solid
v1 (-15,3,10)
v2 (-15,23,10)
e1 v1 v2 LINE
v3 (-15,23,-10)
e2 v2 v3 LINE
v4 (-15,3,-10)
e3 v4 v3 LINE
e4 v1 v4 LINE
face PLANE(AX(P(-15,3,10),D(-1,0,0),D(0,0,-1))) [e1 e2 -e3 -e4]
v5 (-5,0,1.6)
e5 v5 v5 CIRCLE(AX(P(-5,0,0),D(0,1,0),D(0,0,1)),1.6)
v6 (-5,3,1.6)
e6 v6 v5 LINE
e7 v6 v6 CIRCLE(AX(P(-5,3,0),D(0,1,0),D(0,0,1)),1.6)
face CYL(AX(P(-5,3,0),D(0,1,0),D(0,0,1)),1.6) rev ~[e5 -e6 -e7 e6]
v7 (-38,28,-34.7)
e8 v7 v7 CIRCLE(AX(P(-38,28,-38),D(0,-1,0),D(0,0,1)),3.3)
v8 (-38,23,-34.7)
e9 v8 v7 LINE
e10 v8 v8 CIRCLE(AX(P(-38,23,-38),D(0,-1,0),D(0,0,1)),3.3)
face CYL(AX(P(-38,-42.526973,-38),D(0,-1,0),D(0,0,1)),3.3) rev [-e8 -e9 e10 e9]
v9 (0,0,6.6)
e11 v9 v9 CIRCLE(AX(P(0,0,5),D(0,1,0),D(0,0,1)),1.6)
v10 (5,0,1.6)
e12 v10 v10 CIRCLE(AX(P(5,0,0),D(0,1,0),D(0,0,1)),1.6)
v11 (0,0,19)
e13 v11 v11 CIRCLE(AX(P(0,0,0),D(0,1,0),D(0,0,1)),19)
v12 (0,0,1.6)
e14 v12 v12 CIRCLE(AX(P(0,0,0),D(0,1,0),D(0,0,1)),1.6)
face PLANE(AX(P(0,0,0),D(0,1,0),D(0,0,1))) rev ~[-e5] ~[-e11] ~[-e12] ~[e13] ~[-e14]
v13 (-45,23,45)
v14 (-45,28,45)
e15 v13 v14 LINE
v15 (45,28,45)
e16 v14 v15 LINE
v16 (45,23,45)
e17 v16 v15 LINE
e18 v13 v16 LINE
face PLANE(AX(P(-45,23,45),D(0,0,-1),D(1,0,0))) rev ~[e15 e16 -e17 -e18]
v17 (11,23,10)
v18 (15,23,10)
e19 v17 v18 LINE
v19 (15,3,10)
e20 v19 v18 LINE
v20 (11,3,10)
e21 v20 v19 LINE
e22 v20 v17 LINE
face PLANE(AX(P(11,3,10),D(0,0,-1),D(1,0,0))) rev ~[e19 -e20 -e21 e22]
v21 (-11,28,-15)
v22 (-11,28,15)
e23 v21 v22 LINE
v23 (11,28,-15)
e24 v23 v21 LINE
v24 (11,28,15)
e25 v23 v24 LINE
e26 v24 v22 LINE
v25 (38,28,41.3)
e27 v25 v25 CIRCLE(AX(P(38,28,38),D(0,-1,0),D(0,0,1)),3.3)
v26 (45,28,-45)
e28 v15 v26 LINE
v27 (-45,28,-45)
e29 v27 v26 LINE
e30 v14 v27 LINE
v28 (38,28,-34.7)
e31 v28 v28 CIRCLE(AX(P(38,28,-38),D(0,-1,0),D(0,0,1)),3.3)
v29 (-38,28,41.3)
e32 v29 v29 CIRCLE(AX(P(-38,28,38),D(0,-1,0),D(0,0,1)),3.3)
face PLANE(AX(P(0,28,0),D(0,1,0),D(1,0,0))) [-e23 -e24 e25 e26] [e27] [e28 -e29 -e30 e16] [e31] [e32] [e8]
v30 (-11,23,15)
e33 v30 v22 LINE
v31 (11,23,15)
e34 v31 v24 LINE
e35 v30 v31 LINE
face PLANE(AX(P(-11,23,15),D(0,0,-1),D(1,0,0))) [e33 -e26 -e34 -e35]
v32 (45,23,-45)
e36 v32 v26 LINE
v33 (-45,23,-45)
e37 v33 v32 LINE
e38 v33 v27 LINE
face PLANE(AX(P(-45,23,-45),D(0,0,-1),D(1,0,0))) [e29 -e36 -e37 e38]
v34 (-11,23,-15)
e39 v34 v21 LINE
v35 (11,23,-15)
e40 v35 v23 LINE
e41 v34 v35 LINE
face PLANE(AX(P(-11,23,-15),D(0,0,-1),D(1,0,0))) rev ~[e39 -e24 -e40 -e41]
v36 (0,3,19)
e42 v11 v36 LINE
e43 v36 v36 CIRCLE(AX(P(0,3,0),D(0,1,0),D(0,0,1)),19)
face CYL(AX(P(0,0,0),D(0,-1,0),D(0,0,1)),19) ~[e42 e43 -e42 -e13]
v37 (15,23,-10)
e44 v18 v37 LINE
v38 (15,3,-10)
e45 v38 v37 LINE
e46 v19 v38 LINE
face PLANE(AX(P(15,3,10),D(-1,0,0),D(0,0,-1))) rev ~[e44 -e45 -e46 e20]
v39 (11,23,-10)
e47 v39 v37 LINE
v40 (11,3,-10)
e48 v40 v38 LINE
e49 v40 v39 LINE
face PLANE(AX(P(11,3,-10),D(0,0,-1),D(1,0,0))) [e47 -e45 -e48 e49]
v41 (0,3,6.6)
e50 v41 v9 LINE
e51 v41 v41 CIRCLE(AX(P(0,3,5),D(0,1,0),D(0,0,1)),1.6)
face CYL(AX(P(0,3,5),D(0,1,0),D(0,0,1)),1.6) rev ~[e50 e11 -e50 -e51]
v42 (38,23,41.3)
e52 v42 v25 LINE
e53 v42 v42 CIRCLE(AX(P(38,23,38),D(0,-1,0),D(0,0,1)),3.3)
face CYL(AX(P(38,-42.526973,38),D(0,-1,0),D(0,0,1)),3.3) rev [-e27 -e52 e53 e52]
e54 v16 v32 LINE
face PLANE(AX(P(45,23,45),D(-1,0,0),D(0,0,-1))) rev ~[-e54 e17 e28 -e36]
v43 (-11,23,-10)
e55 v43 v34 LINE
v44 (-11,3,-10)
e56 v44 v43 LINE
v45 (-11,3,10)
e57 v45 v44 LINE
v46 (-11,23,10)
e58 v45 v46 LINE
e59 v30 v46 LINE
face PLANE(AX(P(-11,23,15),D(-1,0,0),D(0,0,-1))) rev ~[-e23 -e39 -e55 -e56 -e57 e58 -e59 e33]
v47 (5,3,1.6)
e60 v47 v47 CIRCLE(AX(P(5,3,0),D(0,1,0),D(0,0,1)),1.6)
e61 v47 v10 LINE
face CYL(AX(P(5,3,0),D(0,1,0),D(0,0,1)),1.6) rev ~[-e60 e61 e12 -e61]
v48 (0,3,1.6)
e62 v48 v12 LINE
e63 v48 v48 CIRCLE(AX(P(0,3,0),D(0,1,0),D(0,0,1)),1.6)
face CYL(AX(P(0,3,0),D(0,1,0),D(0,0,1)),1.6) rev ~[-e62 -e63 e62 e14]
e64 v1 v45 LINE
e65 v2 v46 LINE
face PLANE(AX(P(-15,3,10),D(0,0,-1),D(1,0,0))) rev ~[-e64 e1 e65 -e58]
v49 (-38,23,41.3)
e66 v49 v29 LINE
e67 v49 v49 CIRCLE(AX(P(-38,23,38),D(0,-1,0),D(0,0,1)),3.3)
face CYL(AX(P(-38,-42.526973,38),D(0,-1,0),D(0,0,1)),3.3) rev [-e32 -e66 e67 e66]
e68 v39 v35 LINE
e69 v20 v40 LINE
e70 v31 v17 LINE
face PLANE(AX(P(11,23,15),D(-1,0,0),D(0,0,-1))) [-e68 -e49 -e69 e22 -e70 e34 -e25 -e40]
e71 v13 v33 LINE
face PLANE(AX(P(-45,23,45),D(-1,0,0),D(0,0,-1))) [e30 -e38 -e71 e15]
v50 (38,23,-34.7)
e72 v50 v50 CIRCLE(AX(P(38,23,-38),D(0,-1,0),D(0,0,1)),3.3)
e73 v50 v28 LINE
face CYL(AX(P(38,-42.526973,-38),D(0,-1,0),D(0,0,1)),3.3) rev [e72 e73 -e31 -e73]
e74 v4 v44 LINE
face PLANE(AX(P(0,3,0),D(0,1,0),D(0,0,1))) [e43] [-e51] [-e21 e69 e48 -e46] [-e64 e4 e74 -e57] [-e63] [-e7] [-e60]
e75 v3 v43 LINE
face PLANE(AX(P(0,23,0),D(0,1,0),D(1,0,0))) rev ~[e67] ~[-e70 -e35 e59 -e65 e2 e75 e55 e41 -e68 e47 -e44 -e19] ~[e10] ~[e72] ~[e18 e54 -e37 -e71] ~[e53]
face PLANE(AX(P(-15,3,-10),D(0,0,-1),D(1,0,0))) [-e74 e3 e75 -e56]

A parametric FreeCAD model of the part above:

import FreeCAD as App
import Part
import Sketcher

doc = App.newDocument("Part")
body = doc.addObject("PartDesign::Body", "Body")

# Sketch on XZ plane
sketch1 = body.newObject("Sketcher::SketchObject", "Sketch")
sketch1.AttachmentSupport = (doc.getObject("XZ_Plane"), [""])
sketch1.MapMode = "FlatFace"
sketch1.addGeometry(Part.Circle(App.Vector(0, 0, 0), App.Vector(0, 0, 1), 19), False)
sketch1.addConstraint(Sketcher.Constraint("Coincident", 0, 3, -1, 1))
sketch1.addConstraint(Sketcher.Constraint("Diameter", 0, 38.0))
pad1 = body.newObject("PartDesign::Pad", "Pad")
pad1.Profile = sketch1
pad1.Length = 3
pad1.Reversed = True

# Sketch on XZ plane
sketch2 = body.newObject("Sketcher::SketchObject", "Sketch001")
sketch2.AttachmentSupport = (doc.getObject("XZ_Plane"), [""])
sketch2.MapMode = "FlatFace"
sketch2.AttachmentOffset = App.Placement(App.Vector(0, 0, -3), App.Rotation())
sketch2.addGeometry(Part.Circle(App.Vector(-5, 0, 0), App.Vector(0, 0, 1), 1.6), False)
sketch2.addConstraint(Sketcher.Constraint("PointOnObject", 0, 3, -1))
sketch2.addConstraint(Sketcher.Constraint("Diameter", 0, 3.2))
sketch2.addConstraint(Sketcher.Constraint("DistanceX", 0, 3, -1, 1, 5.0))
pocket1 = body.newObject("PartDesign::Pocket", "Pocket")
pocket1.Profile = sketch2
pocket1.Type = "UpToFirst"
pocket1.Reversed = True

# Sketch on XZ plane
sketch3 = body.newObject("Sketcher::SketchObject", "Sketch002")
sketch3.AttachmentSupport = (doc.getObject("XZ_Plane"), [""])
sketch3.MapMode = "FlatFace"
sketch3.AttachmentOffset = App.Placement(App.Vector(0, 0, -3), App.Rotation())
sketch3.addGeometry(Part.Circle(App.Vector(0, 0, 0), App.Vector(0, 0, 1), 1.6), False)
sketch3.addConstraint(Sketcher.Constraint("Coincident", 0, 3, -1, 1))
sketch3.addConstraint(Sketcher.Constraint("Diameter", 0, 3.2))
pocket2 = body.newObject("PartDesign::Pocket", "Pocket001")
pocket2.Profile = sketch3
pocket2.Type = "UpToFirst"
pocket2.Reversed = True

# Sketch on XZ plane
sketch4 = body.newObject("Sketcher::SketchObject", "Sketch003")
sketch4.AttachmentSupport = (doc.getObject("XZ_Plane"), [""])
sketch4.MapMode = "FlatFace"
sketch4.AttachmentOffset = App.Placement(App.Vector(0, 0, -3), App.Rotation())
sketch4.addGeometry(Part.Circle(App.Vector(5, 0, 0), App.Vector(0, 0, 1), 1.6), False)
sketch4.addConstraint(Sketcher.Constraint("PointOnObject", 0, 3, -1))
sketch4.addConstraint(Sketcher.Constraint("Diameter", 0, 3.2))
sketch4.addConstraint(Sketcher.Constraint("DistanceX", -1, 1, 0, 3, 5.0))
pocket3 = body.newObject("PartDesign::Pocket", "Pocket002")
pocket3.Profile = sketch4
pocket3.Type = "UpToFirst"
pocket3.Reversed = True

# Sketch on XZ plane
sketch5 = body.newObject("Sketcher::SketchObject", "Sketch004")
sketch5.AttachmentSupport = (doc.getObject("XZ_Plane"), [""])
sketch5.MapMode = "FlatFace"
sketch5.AttachmentOffset = App.Placement(App.Vector(0, 0, -3), App.Rotation())
sketch5.addGeometry(Part.Circle(App.Vector(0, 5, 0), App.Vector(0, 0, 1), 1.6), False)
sketch5.addConstraint(Sketcher.Constraint("PointOnObject", 0, 3, -2))
sketch5.addConstraint(Sketcher.Constraint("Diameter", 0, 3.2))
sketch5.addConstraint(Sketcher.Constraint("DistanceY", -1, 1, 0, 3, 5.0))
pocket4 = body.newObject("PartDesign::Pocket", "Pocket003")
pocket4.Profile = sketch5
pocket4.Type = "UpToFirst"
pocket4.Reversed = True

# Sketch on XZ plane
sketch6 = body.newObject("Sketcher::SketchObject", "Sketch005")
sketch6.AttachmentSupport = (doc.getObject("XZ_Plane"), [""])
sketch6.MapMode = "FlatFace"
sketch6.AttachmentOffset = App.Placement(App.Vector(0, 0, -3), App.Rotation())
sketch6.addGeometry(Part.LineSegment(App.Vector(-15, -10, 0), App.Vector(-15, 10, 0)), False)
sketch6.addGeometry(Part.LineSegment(App.Vector(-15, 10, 0), App.Vector(-11, 10, 0)), False)
sketch6.addGeometry(Part.LineSegment(App.Vector(-11, 10, 0), App.Vector(-11, -10, 0)), False)
sketch6.addGeometry(Part.LineSegment(App.Vector(-11, -10, 0), App.Vector(-15, -10, 0)), False)
sketch6.addGeometry(Part.LineSegment(App.Vector(11, -10, 0), App.Vector(11, 10, 0)), False)
sketch6.addGeometry(Part.LineSegment(App.Vector(11, 10, 0), App.Vector(15, 10, 0)), False)
sketch6.addGeometry(Part.LineSegment(App.Vector(15, 10, 0), App.Vector(15, -10, 0)), False)
sketch6.addGeometry(Part.LineSegment(App.Vector(15, -10, 0), App.Vector(11, -10, 0)), False)
sketch6.addConstraint(Sketcher.Constraint("Coincident", 0, 2, 1, 1))
sketch6.addConstraint(Sketcher.Constraint("Coincident", 1, 2, 2, 1))
sketch6.addConstraint(Sketcher.Constraint("Coincident", 2, 2, 3, 1))
sketch6.addConstraint(Sketcher.Constraint("Coincident", 3, 2, 0, 1))
sketch6.addConstraint(Sketcher.Constraint("Coincident", 4, 2, 5, 1))
sketch6.addConstraint(Sketcher.Constraint("Coincident", 5, 2, 6, 1))
sketch6.addConstraint(Sketcher.Constraint("Coincident", 6, 2, 7, 1))
sketch6.addConstraint(Sketcher.Constraint("Coincident", 7, 2, 4, 1))
sketch6.addConstraint(Sketcher.Constraint("Vertical", 0))
sketch6.addConstraint(Sketcher.Constraint("Horizontal", 1))
sketch6.addConstraint(Sketcher.Constraint("Vertical", 2))
sketch6.addConstraint(Sketcher.Constraint("Horizontal", 3))
sketch6.addConstraint(Sketcher.Constraint("Vertical", 4))
sketch6.addConstraint(Sketcher.Constraint("Horizontal", 5))
sketch6.addConstraint(Sketcher.Constraint("Vertical", 6))
sketch6.addConstraint(Sketcher.Constraint("Horizontal", 7))
sketch6.addConstraint(Sketcher.Constraint("Symmetric", 2, 2, 4, 2, -1, 1))
sketch6.addConstraint(Sketcher.Constraint("Symmetric", 0, 2, 6, 2, -1, 1))
sketch6.addConstraint(Sketcher.Constraint("Horizontal", 1, 2, 4, 2))
sketch6.addConstraint(Sketcher.Constraint("DistanceX", 1, 1, 1, 2, 4.0))
sketch6.addConstraint(Sketcher.Constraint("DistanceY", 0, 1, 0, 2, 20.0))
sketch6.addConstraint(Sketcher.Constraint("DistanceX", 0, 2, -1, 1, 15.0))
pad2 = body.newObject("PartDesign::Pad", "Pad001")
pad2.Profile = sketch6
pad2.Length = 20
pad2.Reversed = True

# Sketch on XZ plane
sketch7 = body.newObject("Sketcher::SketchObject", "Sketch006")
sketch7.AttachmentSupport = (doc.getObject("XZ_Plane"), [""])
sketch7.MapMode = "FlatFace"
sketch7.AttachmentOffset = App.Placement(App.Vector(0, 0, -23), App.Rotation())
sketch7.addGeometry(Part.LineSegment(App.Vector(-45, -45, 0), App.Vector(-45, 45, 0)), False)
sketch7.addGeometry(Part.LineSegment(App.Vector(-45, 45, 0), App.Vector(45, 45, 0)), False)
sketch7.addGeometry(Part.LineSegment(App.Vector(45, 45, 0), App.Vector(45, -45, 0)), False)
sketch7.addGeometry(Part.LineSegment(App.Vector(45, -45, 0), App.Vector(-45, -45, 0)), False)
sketch7.addConstraint(Sketcher.Constraint("Coincident", 0, 2, 1, 1))
sketch7.addConstraint(Sketcher.Constraint("Coincident", 1, 2, 2, 1))
sketch7.addConstraint(Sketcher.Constraint("Coincident", 2, 2, 3, 1))
sketch7.addConstraint(Sketcher.Constraint("Coincident", 3, 2, 0, 1))
sketch7.addConstraint(Sketcher.Constraint("Vertical", 0))
sketch7.addConstraint(Sketcher.Constraint("Horizontal", 1))
sketch7.addConstraint(Sketcher.Constraint("Vertical", 2))
sketch7.addConstraint(Sketcher.Constraint("Horizontal", 3))
sketch7.addConstraint(Sketcher.Constraint("Symmetric", 0, 2, 2, 2, -1, 1))
sketch7.addConstraint(Sketcher.Constraint("Equal", 3, 0))
sketch7.addConstraint(Sketcher.Constraint("DistanceX", 1, 1, 1, 2, 90.0))
pad3 = body.newObject("PartDesign::Pad", "Pad002")
pad3.Profile = sketch7
pad3.Length = 5
pad3.Reversed = True

# Sketch on XZ plane
sketch8 = body.newObject("Sketcher::SketchObject", "Sketch007")
sketch8.AttachmentSupport = (doc.getObject("XZ_Plane"), [""])
sketch8.MapMode = "FlatFace"
sketch8.AttachmentOffset = App.Placement(App.Vector(0, 0, -28), App.Rotation())
sketch8.addGeometry(Part.Circle(App.Vector(-38, -38, 0), App.Vector(0, 0, 1), 3.3), False)
sketch8.addGeometry(Part.Circle(App.Vector(38, -38, 0), App.Vector(0, 0, 1), 3.3), False)
sketch8.addGeometry(Part.Circle(App.Vector(-38, 38, 0), App.Vector(0, 0, 1), 3.3), False)
sketch8.addGeometry(Part.Circle(App.Vector(38, 38, 0), App.Vector(0, 0, 1), 3.3), False)
sketch8.addConstraint(Sketcher.Constraint("Equal", 0, 1))
sketch8.addConstraint(Sketcher.Constraint("Equal", 1, 2))
sketch8.addConstraint(Sketcher.Constraint("Equal", 2, 3))
sketch8.addConstraint(Sketcher.Constraint("Symmetric", 1, 3, 2, 3, -1, 1))
sketch8.addConstraint(Sketcher.Constraint("Symmetric", 0, 3, 3, 3, -1, 1))
sketch8.addConstraint(Sketcher.Constraint("Symmetric", 0, 3, 1, 3, -2))
sketch8.addConstraint(Sketcher.Constraint("Diameter", 0, 6.6))
sketch8.addConstraint(Sketcher.Constraint("DistanceX", 0, 3, -1, 1, 38.0))
sketch8.addConstraint(Sketcher.Constraint("DistanceY", 0, 3, -1, 1, 38.0))
pocket5 = body.newObject("PartDesign::Pocket", "Pocket004")
pocket5.Profile = sketch8
pocket5.Type = "ThroughAll"
pocket5.Midplane = True

# Sketch on XZ plane
sketch9 = body.newObject("Sketcher::SketchObject", "Sketch008")
sketch9.AttachmentSupport = (doc.getObject("XZ_Plane"), [""])
sketch9.MapMode = "FlatFace"
sketch9.AttachmentOffset = App.Placement(App.Vector(0, 0, -28), App.Rotation())
sketch9.addGeometry(Part.LineSegment(App.Vector(-11, -15, 0), App.Vector(-11, 15, 0)), False)
sketch9.addGeometry(Part.LineSegment(App.Vector(-11, 15, 0), App.Vector(11, 15, 0)), False)
sketch9.addGeometry(Part.LineSegment(App.Vector(11, 15, 0), App.Vector(11, -15, 0)), False)
sketch9.addGeometry(Part.LineSegment(App.Vector(11, -15, 0), App.Vector(-11, -15, 0)), False)
sketch9.addConstraint(Sketcher.Constraint("Coincident", 0, 2, 1, 1))
sketch9.addConstraint(Sketcher.Constraint("Coincident", 1, 2, 2, 1))
sketch9.addConstraint(Sketcher.Constraint("Coincident", 2, 2, 3, 1))
sketch9.addConstraint(Sketcher.Constraint("Coincident", 3, 2, 0, 1))
sketch9.addConstraint(Sketcher.Constraint("Vertical", 0))
sketch9.addConstraint(Sketcher.Constraint("Horizontal", 1))
sketch9.addConstraint(Sketcher.Constraint("Vertical", 2))
sketch9.addConstraint(Sketcher.Constraint("Horizontal", 3))
sketch9.addConstraint(Sketcher.Constraint("Symmetric", 0, 2, 2, 2, -1, 1))
sketch9.addConstraint(Sketcher.Constraint("DistanceX", 1, 1, 1, 2, 22.0))
sketch9.addConstraint(Sketcher.Constraint("DistanceY", 0, 1, 0, 2, 30.0))
pocket6 = body.newObject("PartDesign::Pocket", "Pocket005")
pocket6.Profile = sketch9
pocket6.Type = "TwoLengths"
pocket6.Length = 70.526973
pocket6.Length2 = 5

doc.recompute()
